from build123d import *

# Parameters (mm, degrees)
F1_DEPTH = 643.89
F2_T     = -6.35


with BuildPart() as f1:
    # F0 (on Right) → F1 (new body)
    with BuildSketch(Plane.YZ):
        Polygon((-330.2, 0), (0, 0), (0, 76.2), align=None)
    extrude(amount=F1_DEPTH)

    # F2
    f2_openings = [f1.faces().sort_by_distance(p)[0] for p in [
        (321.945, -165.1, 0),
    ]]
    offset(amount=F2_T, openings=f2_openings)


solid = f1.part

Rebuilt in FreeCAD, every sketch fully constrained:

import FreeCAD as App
import Part
import Sketcher
from FreeCAD import Vector
Q = App.Units.Quantity


def faces_at(feature, points):
    """Names of the faces that lie closest to the given points."""
    faces = feature.Shape.Faces
    near = lambda p: min(range(len(faces)), key=lambda i: faces[i].distToShape(Part.Vertex(*p))[0])
    return sorted({f"Face{near(p) + 1}" for p in points})

doc = App.newDocument("Part")
body = doc.addObject("PartDesign::Body", "Body")

# Sketch on YZ plane
sketch1 = body.newObject("Sketcher::SketchObject", "Sketch")
sketch1.AttachmentSupport = (doc.getObject("YZ_Plane"), [""])
sketch1.MapMode = "FlatFace"
sketch1.addGeometry(Part.LineSegment(Vector(-330, 0, 0), Vector(0, 0, 0)), False)
sketch1.addGeometry(Part.LineSegment(Vector(0, 0, 0), Vector(0, 76, 0)), False)
sketch1.addGeometry(Part.LineSegment(Vector(0, 76, 0), Vector(-330, 0, 0)), False)
sketch1.addConstraint(Sketcher.Constraint("Coincident", 0, 2, 1, 1))
sketch1.addConstraint(Sketcher.Constraint("Coincident", 1, 2, 2, 1))
sketch1.addConstraint(Sketcher.Constraint("Coincident", 2, 2, 0, 1))
sketch1.addConstraint(Sketcher.Constraint("Horizontal", 0))
sketch1.addConstraint(Sketcher.Constraint("Vertical", 1))
sketch1.addConstraint(Sketcher.Constraint("Coincident", 0, 2, -1, 1))
sketch1.addConstraint(Sketcher.Constraint("DistanceX", 0, 1, 0, 2, Q("13 in")))
sketch1.addConstraint(Sketcher.Constraint("DistanceY", 1, 1, 1, 2, Q("3 in")))
pad1 = body.newObject("PartDesign::Pad", "Pad")
pad1.Profile = sketch1
pad1.Length = Q("25.35 in")
doc.recompute()

thickness = body.newObject("PartDesign::Thickness", "Thickness")
thickness.Base = (pad1, faces_at(pad1, [(321.945, -165.1, 0)]))
thickness.Value = Q("0.25 in")
thickness.Reversed = True
thickness.Join = "Arc"

doc.recompute()
